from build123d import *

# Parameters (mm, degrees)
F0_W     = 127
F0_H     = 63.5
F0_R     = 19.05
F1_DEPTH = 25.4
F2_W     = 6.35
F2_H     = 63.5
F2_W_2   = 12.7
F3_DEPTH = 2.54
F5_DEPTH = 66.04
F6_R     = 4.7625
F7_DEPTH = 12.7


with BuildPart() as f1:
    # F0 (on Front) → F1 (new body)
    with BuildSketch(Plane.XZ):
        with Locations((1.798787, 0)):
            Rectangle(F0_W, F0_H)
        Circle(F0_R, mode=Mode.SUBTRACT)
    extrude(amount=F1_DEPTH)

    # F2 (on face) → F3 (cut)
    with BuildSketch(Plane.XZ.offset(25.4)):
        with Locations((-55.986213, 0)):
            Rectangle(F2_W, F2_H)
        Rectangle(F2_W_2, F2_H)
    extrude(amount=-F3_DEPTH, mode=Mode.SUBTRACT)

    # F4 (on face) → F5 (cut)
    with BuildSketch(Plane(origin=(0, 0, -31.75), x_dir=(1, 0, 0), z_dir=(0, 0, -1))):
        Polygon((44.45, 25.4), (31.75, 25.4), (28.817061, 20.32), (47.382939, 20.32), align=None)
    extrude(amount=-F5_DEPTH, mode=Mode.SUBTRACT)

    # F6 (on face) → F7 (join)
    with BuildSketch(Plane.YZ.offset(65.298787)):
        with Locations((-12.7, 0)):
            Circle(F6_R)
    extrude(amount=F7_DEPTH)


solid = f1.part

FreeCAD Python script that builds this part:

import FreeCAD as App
import Part
import Sketcher
from FreeCAD import Vector
Q = App.Units.Quantity

doc = App.newDocument("Part")
body = doc.addObject("PartDesign::Body", "Body")

# Sketch on XZ plane
sketch1 = body.newObject("Sketcher::SketchObject", "Sketch")
sketch1.AttachmentSupport = (doc.getObject("XZ_Plane"), [""])
sketch1.MapMode = "FlatFace"
sketch1.addGeometry([
    Part.LineSegment(Vector(-62, 32, 0), Vector(-62, -32, 0)),  # 0
    Part.LineSegment(Vector(-62, -32, 0), Vector(65, -32, 0)),  # 1
    Part.LineSegment(Vector(65, -32, 0), Vector(65, 32, 0)),  # 2
    Part.LineSegment(Vector(65, 32, 0), Vector(-62, 32, 0)),  # 3
    Part.Circle(Vector(0, 0, 0), Vector(0, 0, 1), 19),  # 4
], False)
sketch1.addConstraint([
    Sketcher.Constraint("Coincident", 0, 2, 1, 1),
    Sketcher.Constraint("Coincident", 1, 2, 2, 1),
    Sketcher.Constraint("Coincident", 2, 2, 3, 1),
    Sketcher.Constraint("Coincident", 3, 2, 0, 1),
    Sketcher.Constraint("Vertical", 0),
    Sketcher.Constraint("Horizontal", 1),
    Sketcher.Constraint("Vertical", 2),
    Sketcher.Constraint("Horizontal", 3),
    Sketcher.Constraint("Coincident", 4, 3, -1, 1),
    Sketcher.Constraint("Diameter", 4, Q("1.5 in")),
    Sketcher.Constraint("DistanceX", 1, 1, 1, 2, Q("5 in")),
    Sketcher.Constraint("DistanceY", 0, 2, 0, 1, Q("2.5 in")),
    Sketcher.Constraint("DistanceY", 0, 2, -1, 1, Q("1.25 in")),
    Sketcher.Constraint("DistanceX", 0, 2, -1, 1, 61.701213),
])
pad1 = body.newObject("PartDesign::Pad", "Pad")
pad1.Profile = sketch1
pad1.Length = Q("1 in")

# Sketch on XZ plane
sketch2 = body.newObject("Sketcher::SketchObject", "Sketch001")
sketch2.AttachmentSupport = (doc.getObject("XZ_Plane"), [""])
sketch2.MapMode = "FlatFace"
sketch2.AttachmentOffset = App.Placement(Vector(0, 0, 1 * 25.4), App.Rotation())
sketch2.addGeometry([
    Part.LineSegment(Vector(-59, 32, 0), Vector(-59, -32, 0)),  # 0
    Part.LineSegment(Vector(-59, -32, 0), Vector(-53, -32, 0)),  # 1
    Part.LineSegment(Vector(-53, -32, 0), Vector(-53, 32, 0)),  # 2
    Part.LineSegment(Vector(-53, 32, 0), Vector(-59, 32, 0)),  # 3
    Part.LineSegment(Vector(-6, 32, 0), Vector(-6, -32, 0)),  # 4
    Part.LineSegment(Vector(-6, -32, 0), Vector(6, -32, 0)),  # 5
    Part.LineSegment(Vector(6, -32, 0), Vector(6, 32, 0)),  # 6
    Part.LineSegment(Vector(6, 32, 0), Vector(-6, 32, 0)),  # 7
], False)
sketch2.addConstraint([
    Sketcher.Constraint("Coincident", 0, 2, 1, 1),
    Sketcher.Constraint("Coincident", 1, 2, 2, 1),
    Sketcher.Constraint("Coincident", 2, 2, 3, 1),
    Sketcher.Constraint("Coincident", 3, 2, 0, 1),
    Sketcher.Constraint("Coincident", 4, 2, 5, 1),
    Sketcher.Constraint("Coincident", 5, 2, 6, 1),
    Sketcher.Constraint("Coincident", 6, 2, 7, 1),
    Sketcher.Constraint("Coincident", 7, 2, 4, 1),
    Sketcher.Constraint("Vertical", 0),
    Sketcher.Constraint("Horizontal", 1),
    Sketcher.Constraint("Vertical", 2),
    Sketcher.Constraint("Horizontal", 3),
    Sketcher.Constraint("Vertical", 4),
    Sketcher.Constraint("Horizontal", 5),
    Sketcher.Constraint("Vertical", 6),
    Sketcher.Constraint("Horizontal", 7),
    Sketcher.Constraint("Symmetric", 4, 2, 6, 2, -1, 1),
    Sketcher.Constraint("Horizontal", 1, 2, 4, 2),
    Sketcher.Constraint("Horizontal", 3, 2, 6, 2),
    Sketcher.Constraint("DistanceX", 5, 1, 5, 2, Q("0.5 in")),
    Sketcher.Constraint("DistanceY", 0, 2, 0, 1, Q("2.5 in")),
    Sketcher.Constraint("DistanceX", 1, 1, 1, 2, Q("0.25 in")),
    Sketcher.Constraint("DistanceX", 0, 2, -1, 1, 59.161213),
])
pocket1 = body.newObject("PartDesign::Pocket", "Pocket")
pocket1.Profile = sketch2
pocket1.Length = Q("0.1 in")

# Sketch on XY plane
sketch3 = body.newObject("Sketcher::SketchObject", "Sketch002")
sketch3.AttachmentSupport = (doc.getObject("XY_Plane"), [""])
sketch3.MapMode = "FlatFace"
sketch3.AttachmentOffset = App.Placement(Vector(0, 0, -1.25 * 25.4), App.Rotation())
sketch3.addGeometry([
    Part.LineSegment(Vector(44, -25, 0), Vector(32, -25, 0)),
    Part.LineSegment(Vector(32, -25, 0), Vector(29, -20, 0)),
    Part.LineSegment(Vector(29, -20, 0), Vector(47, -20, 0)),
    Part.LineSegment(Vector(47, -20, 0), Vector(44, -25, 0)),
], False)
sketch3.addConstraint([
    Sketcher.Constraint("Coincident", 0, 2, 1, 1),
    Sketcher.Constraint("Coincident", 1, 2, 2, 1),
    Sketcher.Constraint("Coincident", 2, 2, 3, 1),
    Sketcher.Constraint("Coincident", 3, 2, 0, 1),
    Sketcher.Constraint("Horizontal", 0),
    Sketcher.Constraint("Horizontal", 2),
    Sketcher.Constraint("Equal", 1, 3),
    Sketcher.Constraint("DistanceX", 0, 2, 0, 1, Q("0.5 in")),
    Sketcher.Constraint("DistanceY", 0, 2, -1, 1, Q("1 in")),
    Sketcher.Constraint("Angle", 1, Q("119.999997 deg")),
    Sketcher.Constraint("DistanceY", 1, 2, -1, 1, Q("0.8 in")),
    Sketcher.Constraint("DistanceX", -1, 1, 0, 2, Q("1.25 in")),
])
pocket2 = body.newObject("PartDesign::Pocket", "Pocket001")
pocket2.Profile = sketch3
pocket2.Length = Q("2.6 in")
pocket2.Reversed = True

# Sketch on YZ plane
sketch4 = body.newObject("Sketcher::SketchObject", "Sketch003")
sketch4.AttachmentSupport = (doc.getObject("YZ_Plane"), [""])
sketch4.MapMode = "FlatFace"
sketch4.AttachmentOffset = App.Placement(Vector(0, 0, 65.298787), App.Rotation())
sketch4.addGeometry(Part.Circle(Vector(-12.7, 0, 0), Vector(0, 0, 1), 4.8), False)
sketch4.addConstraint([
    Sketcher.Constraint("PointOnObject", 0, 3, -1),
    Sketcher.Constraint("Diameter", 0, Q("0.375 in")),
    Sketcher.Constraint("DistanceX", 0, 3, -1, 1, Q("0.5 in")),
])
pad2 = body.newObject("PartDesign::Pad", "Pad001")
pad2.Profile = sketch4
pad2.Length = Q("0.5 in")

doc.recompute()
